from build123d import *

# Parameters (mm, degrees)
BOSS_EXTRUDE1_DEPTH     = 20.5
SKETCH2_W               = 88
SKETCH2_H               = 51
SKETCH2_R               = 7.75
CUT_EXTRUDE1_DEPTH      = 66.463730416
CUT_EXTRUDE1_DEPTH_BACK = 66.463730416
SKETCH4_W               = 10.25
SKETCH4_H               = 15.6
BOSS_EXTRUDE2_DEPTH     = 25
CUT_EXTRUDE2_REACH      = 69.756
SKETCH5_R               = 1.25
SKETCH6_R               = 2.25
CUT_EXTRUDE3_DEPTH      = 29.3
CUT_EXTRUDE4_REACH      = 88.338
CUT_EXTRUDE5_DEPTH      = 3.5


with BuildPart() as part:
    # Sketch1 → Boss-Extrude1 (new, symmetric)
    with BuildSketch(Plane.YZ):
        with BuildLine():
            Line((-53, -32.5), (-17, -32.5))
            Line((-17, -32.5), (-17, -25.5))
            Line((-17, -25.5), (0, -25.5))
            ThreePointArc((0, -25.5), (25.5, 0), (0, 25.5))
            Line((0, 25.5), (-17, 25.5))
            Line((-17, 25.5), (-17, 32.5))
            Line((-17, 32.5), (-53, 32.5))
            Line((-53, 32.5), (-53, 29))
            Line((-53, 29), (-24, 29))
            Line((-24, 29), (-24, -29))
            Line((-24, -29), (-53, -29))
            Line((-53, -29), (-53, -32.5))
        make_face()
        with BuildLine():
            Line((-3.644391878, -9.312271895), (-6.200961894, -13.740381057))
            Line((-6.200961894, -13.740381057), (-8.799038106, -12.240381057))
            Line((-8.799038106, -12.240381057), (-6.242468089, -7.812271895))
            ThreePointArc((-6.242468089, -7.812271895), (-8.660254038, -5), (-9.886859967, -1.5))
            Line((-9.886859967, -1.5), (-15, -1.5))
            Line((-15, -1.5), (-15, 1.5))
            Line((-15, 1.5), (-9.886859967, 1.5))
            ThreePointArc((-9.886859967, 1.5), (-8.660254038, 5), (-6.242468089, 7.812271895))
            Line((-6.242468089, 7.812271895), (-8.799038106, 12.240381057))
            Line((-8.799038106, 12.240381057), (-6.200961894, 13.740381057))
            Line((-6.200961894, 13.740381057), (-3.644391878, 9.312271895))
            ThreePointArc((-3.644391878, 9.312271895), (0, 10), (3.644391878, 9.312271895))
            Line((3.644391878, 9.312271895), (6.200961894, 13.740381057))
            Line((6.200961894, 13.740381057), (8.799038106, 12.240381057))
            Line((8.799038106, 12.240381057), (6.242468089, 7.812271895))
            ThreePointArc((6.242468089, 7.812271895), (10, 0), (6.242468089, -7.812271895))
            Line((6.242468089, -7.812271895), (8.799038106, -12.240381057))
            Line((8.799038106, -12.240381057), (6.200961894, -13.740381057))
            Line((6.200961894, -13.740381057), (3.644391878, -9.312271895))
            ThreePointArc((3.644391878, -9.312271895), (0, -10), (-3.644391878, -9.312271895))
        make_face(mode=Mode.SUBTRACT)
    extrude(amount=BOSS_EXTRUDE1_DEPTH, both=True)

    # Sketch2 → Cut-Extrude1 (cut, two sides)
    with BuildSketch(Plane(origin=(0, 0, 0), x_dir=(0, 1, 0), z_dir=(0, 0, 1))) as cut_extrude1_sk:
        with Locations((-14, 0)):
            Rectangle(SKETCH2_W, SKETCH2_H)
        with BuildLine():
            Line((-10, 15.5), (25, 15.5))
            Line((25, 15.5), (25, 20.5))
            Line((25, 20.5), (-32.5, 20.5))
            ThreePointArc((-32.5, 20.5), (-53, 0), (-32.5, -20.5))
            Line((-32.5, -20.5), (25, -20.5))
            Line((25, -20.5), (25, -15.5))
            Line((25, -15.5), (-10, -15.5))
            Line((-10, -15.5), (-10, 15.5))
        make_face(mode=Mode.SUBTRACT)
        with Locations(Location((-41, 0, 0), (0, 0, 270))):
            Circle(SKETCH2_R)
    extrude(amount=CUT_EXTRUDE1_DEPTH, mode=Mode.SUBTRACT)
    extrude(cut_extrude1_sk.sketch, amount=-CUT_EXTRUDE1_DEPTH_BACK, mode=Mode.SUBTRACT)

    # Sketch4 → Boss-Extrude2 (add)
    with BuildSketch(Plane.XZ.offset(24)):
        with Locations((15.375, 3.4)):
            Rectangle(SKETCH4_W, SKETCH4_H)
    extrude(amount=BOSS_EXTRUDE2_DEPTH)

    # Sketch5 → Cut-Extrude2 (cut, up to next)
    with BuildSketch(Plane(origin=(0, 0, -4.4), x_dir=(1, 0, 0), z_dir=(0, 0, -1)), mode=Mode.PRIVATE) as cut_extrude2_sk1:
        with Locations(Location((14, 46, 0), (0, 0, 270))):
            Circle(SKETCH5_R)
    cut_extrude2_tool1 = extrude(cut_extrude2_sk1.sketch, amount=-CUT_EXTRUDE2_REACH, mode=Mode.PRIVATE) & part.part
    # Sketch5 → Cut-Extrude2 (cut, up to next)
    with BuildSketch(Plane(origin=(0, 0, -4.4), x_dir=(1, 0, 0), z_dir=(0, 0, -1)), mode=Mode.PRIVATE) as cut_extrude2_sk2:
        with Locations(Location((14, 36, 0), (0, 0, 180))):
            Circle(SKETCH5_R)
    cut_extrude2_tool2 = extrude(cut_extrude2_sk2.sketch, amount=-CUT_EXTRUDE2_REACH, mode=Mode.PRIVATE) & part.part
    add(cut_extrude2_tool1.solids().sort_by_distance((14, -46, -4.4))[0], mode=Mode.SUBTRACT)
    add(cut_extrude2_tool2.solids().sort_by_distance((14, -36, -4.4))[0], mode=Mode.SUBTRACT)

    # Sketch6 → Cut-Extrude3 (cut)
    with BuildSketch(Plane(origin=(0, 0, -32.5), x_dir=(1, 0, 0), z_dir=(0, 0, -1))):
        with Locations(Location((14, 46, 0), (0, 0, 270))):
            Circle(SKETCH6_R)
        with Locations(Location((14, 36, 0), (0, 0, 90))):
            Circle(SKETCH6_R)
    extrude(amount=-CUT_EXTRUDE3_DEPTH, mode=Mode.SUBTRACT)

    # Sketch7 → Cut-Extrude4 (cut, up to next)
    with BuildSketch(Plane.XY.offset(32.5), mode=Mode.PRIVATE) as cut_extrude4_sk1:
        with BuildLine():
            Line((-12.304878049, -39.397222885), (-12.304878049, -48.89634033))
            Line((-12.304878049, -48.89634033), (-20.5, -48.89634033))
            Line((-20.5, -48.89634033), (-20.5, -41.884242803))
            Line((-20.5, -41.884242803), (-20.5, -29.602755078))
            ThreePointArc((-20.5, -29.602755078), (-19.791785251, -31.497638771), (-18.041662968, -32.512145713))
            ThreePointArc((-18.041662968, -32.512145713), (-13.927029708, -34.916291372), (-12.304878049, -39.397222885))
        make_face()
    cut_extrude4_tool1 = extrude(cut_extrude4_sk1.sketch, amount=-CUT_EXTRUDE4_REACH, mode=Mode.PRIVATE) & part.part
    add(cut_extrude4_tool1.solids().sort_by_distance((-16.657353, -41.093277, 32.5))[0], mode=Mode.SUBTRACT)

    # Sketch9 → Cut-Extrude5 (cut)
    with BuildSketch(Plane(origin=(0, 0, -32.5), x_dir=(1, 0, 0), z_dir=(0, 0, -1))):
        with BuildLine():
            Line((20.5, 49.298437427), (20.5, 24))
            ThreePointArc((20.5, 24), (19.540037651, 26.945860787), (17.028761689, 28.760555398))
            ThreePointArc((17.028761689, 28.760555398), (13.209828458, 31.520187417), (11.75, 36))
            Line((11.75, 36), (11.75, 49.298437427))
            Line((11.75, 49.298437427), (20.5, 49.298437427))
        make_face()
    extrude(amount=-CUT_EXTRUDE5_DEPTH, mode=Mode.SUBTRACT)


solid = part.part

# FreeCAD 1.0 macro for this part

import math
import FreeCAD as App
import Part
import Sketcher
Q = App.Units.Quantity


def add_polygon(sketch, points):
    """Adds a closed chain of lines whose ends are joined by coincident constraints."""
    first, n = sketch.GeometryCount, len(points)
    for a, b in zip(points, points[1:] + points[:1]):
        sketch.addGeometry(Part.LineSegment(App.Vector(*a, 0), App.Vector(*b, 0)), False)
    for i in range(n):
        sketch.addConstraint(Sketcher.Constraint("Coincident", first + i, 2, first + (i + 1) % n, 1))

doc = App.newDocument("Part")
params = doc.addObject("Spreadsheet::Sheet", "Params")
for row, (alias, value) in enumerate([
    ("sketch1_radius", "10 mm"),
    ("sketch1_radius2", "25.5 mm"),
    ("sketch1_width", "36 mm"),
    ("sketch1_width2", "17 mm"),
    ("sketch1_width3", "29 mm"),
    ("pad1_length", "41 mm"),
    ("sketch2_diameter", "15.5 mm"),
    ("sketch2_radius", "20.5 mm"),
    ("sketch2_width", "51 mm"),
    ("sketch2_width2", "31 mm"),
    ("sketch2_height", "88 mm"),
    ("sketch3_height", "15.6 mm"),
    ("sketch3_width", "10.25 mm"),
    ("pad2_length", "25 mm"),
    ("sketch4_diameter", "2.5 mm"),
    ("sketch5_diameter", "2.5 mm"),
    ("sketch6_diameter", "4.5 mm"),
    ("pocket4_length", "29.3 mm"),
    ("sketch7_radius", "7 mm"),
    ("sketch7_radius2", "3 mm"),
    ("sketch8_radius", "5 mm"),
    ("sketch8_width", "8.75 mm"),
    ("pocket6_length", "3.5 mm"),
], start=1):
    params.set(f"A{row}", alias)
    params.set(f"B{row}", "=" + value)
    params.setAlias(f"B{row}", alias)

body = doc.addObject("PartDesign::Body", "Body")

# Sketch on YZ plane
sketch1 = body.newObject("Sketcher::SketchObject", "Sketch")
sketch1.AttachmentSupport = (doc.getObject("YZ_Plane"), [""])
sketch1.MapMode = "FlatFace"
sketch1.addGeometry([
    Part.LineSegment(App.Vector(-53, -32.5, 0), App.Vector(-17, -32.5, 0)),  # 0
    Part.LineSegment(App.Vector(-17, -32.5, 0), App.Vector(-17, -25.5, 0)),  # 1
    Part.LineSegment(App.Vector(-17, -25.5, 0), App.Vector(0, -25.5, 0)),  # 2
    Part.ArcOfCircle(Part.Circle(App.Vector(0, 0, 0), App.Vector(0, 0, 1), 25.5), math.radians(-90), math.radians(90)),  # 3
    Part.LineSegment(App.Vector(0, 25.5, 0), App.Vector(-17, 25.5, 0)),  # 4
    Part.LineSegment(App.Vector(-17, 25.5, 0), App.Vector(-17, 32.5, 0)),  # 5
    Part.LineSegment(App.Vector(-17, 32.5, 0), App.Vector(-53, 32.5, 0)),  # 6
    Part.LineSegment(App.Vector(-53, 32.5, 0), App.Vector(-53, 29, 0)),  # 7
    Part.LineSegment(App.Vector(-53, 29, 0), App.Vector(-24, 29, 0)),  # 8
    Part.LineSegment(App.Vector(-24, 29, 0), App.Vector(-24, -29, 0)),  # 9
    Part.LineSegment(App.Vector(-24, -29, 0), App.Vector(-53, -29, 0)),  # 10
    Part.LineSegment(App.Vector(-53, -29, 0), App.Vector(-53, -32.5, 0)),  # 11
    Part.ArcOfCircle(Part.Circle(App.Vector(0, 0, 0), App.Vector(0, 0, 1), 10), math.radians(-111), math.radians(-69)),  # 12
    Part.LineSegment(App.Vector(-3.6, -9.3, 0), App.Vector(-6.2, -13.7, 0)),  # 13
    Part.LineSegment(App.Vector(-6.2, -13.7, 0), App.Vector(-8.8, -12.2, 0)),  # 14
    Part.LineSegment(App.Vector(-8.8, -12.2, 0), App.Vector(-6.2, -7.8, 0)),  # 15
    Part.ArcOfCircle(Part.Circle(App.Vector(0, 0, 0), App.Vector(0, 0, 1), 10), math.radians(-171), math.radians(-129)),  # 16
    Part.LineSegment(App.Vector(-9.9, -1.5, 0), App.Vector(-15, -1.5, 0)),  # 17
    Part.LineSegment(App.Vector(-15, -1.5, 0), App.Vector(-15, 1.5, 0)),  # 18
    Part.LineSegment(App.Vector(-15, 1.5, 0), App.Vector(-9.9, 1.5, 0)),  # 19
    Part.ArcOfCircle(Part.Circle(App.Vector(0, 0, 0), App.Vector(0, 0, 1), 10), math.radians(129), math.radians(171)),  # 20
    Part.LineSegment(App.Vector(-6.2, 7.8, 0), App.Vector(-8.8, 12.2, 0)),  # 21
    Part.LineSegment(App.Vector(-8.8, 12.2, 0), App.Vector(-6.2, 13.7, 0)),  # 22
    Part.LineSegment(App.Vector(-6.2, 13.7, 0), App.Vector(-3.6, 9.3, 0)),  # 23
    Part.ArcOfCircle(Part.Circle(App.Vector(0, 0, 0), App.Vector(0, 0, 1), 10), math.radians(69), math.radians(111)),  # 24
    Part.LineSegment(App.Vector(3.6, 9.3, 0), App.Vector(6.2, 13.7, 0)),  # 25
    Part.LineSegment(App.Vector(6.2, 13.7, 0), App.Vector(8.8, 12.2, 0)),  # 26
    Part.LineSegment(App.Vector(8.8, 12.2, 0), App.Vector(6.2, 7.8, 0)),  # 27
    Part.ArcOfCircle(Part.Circle(App.Vector(0, 0, 0), App.Vector(0, 0, 1), 10), math.radians(-51), math.radians(51)),  # 28
    Part.LineSegment(App.Vector(6.2, -7.8, 0), App.Vector(8.8, -12.2, 0)),  # 29
    Part.LineSegment(App.Vector(8.8, -12.2, 0), App.Vector(6.2, -13.7, 0)),  # 30
    Part.LineSegment(App.Vector(6.2, -13.7, 0), App.Vector(3.6, -9.3, 0)),  # 31
], False)
sketch1.addConstraint([
    Sketcher.Constraint("Coincident", 0, 2, 1, 1),
    Sketcher.Constraint("Coincident", 1, 2, 2, 1),
    Sketcher.Constraint("Tangent", 2, 2, 3, 1),
    Sketcher.Constraint("Tangent", 3, 2, 4, 1),
    Sketcher.Constraint("Coincident", 4, 2, 5, 1),
    Sketcher.Constraint("Coincident", 5, 2, 6, 1),
    Sketcher.Constraint("Coincident", 6, 2, 7, 1),
    Sketcher.Constraint("Coincident", 7, 2, 8, 1),
    Sketcher.Constraint("Coincident", 8, 2, 9, 1),
    Sketcher.Constraint("Coincident", 9, 2, 10, 1),
    Sketcher.Constraint("Coincident", 10, 2, 11, 1),
    Sketcher.Constraint("Coincident", 11, 2, 0, 1),
    Sketcher.Constraint("Coincident", 12, 1, 13, 1),
    Sketcher.Constraint("Coincident", 13, 2, 14, 1),
    Sketcher.Constraint("Coincident", 14, 2, 15, 1),
    Sketcher.Constraint("Coincident", 15, 2, 16, 2),
    Sketcher.Constraint("Coincident", 16, 1, 17, 1),
    Sketcher.Constraint("Coincident", 17, 2, 18, 1),
    Sketcher.Constraint("Coincident", 18, 2, 19, 1),
    Sketcher.Constraint("Coincident", 19, 2, 20, 2),
    Sketcher.Constraint("Coincident", 20, 1, 21, 1),
    Sketcher.Constraint("Coincident", 21, 2, 22, 1),
    Sketcher.Constraint("Coincident", 22, 2, 23, 1),
    Sketcher.Constraint("Coincident", 23, 2, 24, 2),
    Sketcher.Constraint("Coincident", 24, 1, 25, 1),
    Sketcher.Constraint("Coincident", 25, 2, 26, 1),
    Sketcher.Constraint("Coincident", 26, 2, 27, 1),
    Sketcher.Constraint("Coincident", 27, 2, 28, 2),
    Sketcher.Constraint("Coincident", 28, 1, 29, 1),
    Sketcher.Constraint("Coincident", 29, 2, 30, 1),
    Sketcher.Constraint("Coincident", 30, 2, 31, 1),
    Sketcher.Constraint("Coincident", 31, 2, 12, 2),
    Sketcher.Constraint("Horizontal", 0),
    Sketcher.Constraint("Vertical", 1),
    Sketcher.Constraint("Horizontal", 2),
    Sketcher.Constraint("Horizontal", 4),
    Sketcher.Constraint("Vertical", 5),
    Sketcher.Constraint("Horizontal", 6),
    Sketcher.Constraint("Vertical", 7),
    Sketcher.Constraint("Horizontal", 8),
    Sketcher.Constraint("Vertical", 9),
    Sketcher.Constraint("Horizontal", 10),
    Sketcher.Constraint("Vertical", 11),
    Sketcher.Constraint("Horizontal", 17),
    Sketcher.Constraint("Vertical", 18),
    Sketcher.Constraint("Horizontal", 19),
    Sketcher.Constraint("Coincident", 3, 3, -1, 1),
    Sketcher.Constraint("Coincident", 12, 3, -1, 1),
    Sketcher.Constraint("Coincident", 16, 3, -1, 1),
    Sketcher.Constraint("Coincident", 20, 3, -1, 1),
    Sketcher.Constraint("Coincident", 24, 3, -1, 1),
    Sketcher.Constraint("Coincident", 28, 3, -1, 1),
    Sketcher.Constraint("Equal", 12, 16),
    Sketcher.Constraint("Equal", 16, 20),
    Sketcher.Constraint("Equal", 20, 24),
    Sketcher.Constraint("Equal", 24, 28),
    Sketcher.Constraint("Symmetric", 13, 2, 25, 2, -1, 1),
    Sketcher.Constraint("Symmetric", 14, 2, 26, 2, -1, 1),
    Sketcher.Constraint("Symmetric", 21, 2, 29, 2, -1, 1),
    Sketcher.Constraint("Symmetric", 22, 2, 30, 2, -1, 1),
    Sketcher.Constraint("Symmetric", 22, 2, 25, 2, -2),
    Sketcher.Constraint("Symmetric", 21, 2, 26, 2, -2),
    Sketcher.Constraint("Symmetric", 0, 2, 5, 2, -1),
    Sketcher.Constraint("Symmetric", 7, 2, 10, 2, -1),
    Sketcher.Constraint("Perpendicular", 13, 14),
    Sketcher.Constraint("Perpendicular", 14, 15),
    Sketcher.Constraint("Perpendicular", 21, 22),
    Sketcher.Constraint("Perpendicular", 22, 23),
    Sketcher.Constraint("Parallel", 15, 25),
    Sketcher.Constraint("Perpendicular", 26, 27),
    Sketcher.Constraint("Parallel", 23, 29),
    Sketcher.Constraint("Perpendicular", 30, 31),
    Sketcher.Constraint("Vertical", 16, 1, 19, 2),
    Sketcher.Constraint("Equal", 13, 15),
    Sketcher.Constraint("Radius", 12, 10.0),
    Sketcher.Constraint("Radius", 3, 25.5),
    Sketcher.Constraint("DistanceX", 0, 1, 0, 2, 36.0),
    Sketcher.Constraint("DistanceX", 2, 1, 2, 2, 17.0),
    Sketcher.Constraint("DistanceX", 8, 1, 8, 2, 29.0),
    Sketcher.Constraint("DistanceY", 1, 1, 1, 2, 7.0),
    Sketcher.Constraint("DistanceY", 9, 2, 9, 1, 58.0),
    Sketcher.Constraint("DistanceY", 18, 1, 18, 2, 3.0),
    Sketcher.Constraint("Angle", 13, Q("-120 deg")),
    Sketcher.Constraint("Distance", 14, 3.0),
    Sketcher.Constraint("DistanceX", 17, 2, -1, 1, 15.0),
    Sketcher.Constraint("DistanceX", 13, 2, 29, 2, 15.0),
])
sketch1.setExpression("Constraints[74]", "Params.sketch1_radius")
sketch1.setExpression("Constraints[75]", "Params.sketch1_radius2")
sketch1.setExpression("Constraints[76]", "Params.sketch1_width")
sketch1.setExpression("Constraints[77]", "Params.sketch1_width2")
sketch1.setExpression("Constraints[78]", "Params.sketch1_width3")
pad1 = body.newObject("PartDesign::Pad", "Pad")
pad1.Profile = sketch1
pad1.setExpression("Length", "Params.pad1_length")
pad1.Midplane = True

# Sketch on XY plane
sketch2 = body.newObject("Sketcher::SketchObject", "Sketch001")
sketch2.AttachmentSupport = (doc.getObject("XY_Plane"), [""])
sketch2.MapMode = "FlatFace"
add_polygon(sketch2, [(-26, -58), (26, -58), (26, 30), (-26, 30)])  # lines 0-3
sketch2.addGeometry(Part.LineSegment(App.Vector(-16, 25, 0), App.Vector(-16, -10, 0)), False)  # 4
sketch2.addGeometry(Part.LineSegment(App.Vector(-16, -10, 0), App.Vector(16, -10, 0)), False)  # 5
sketch2.addGeometry(Part.LineSegment(App.Vector(16, -10, 0), App.Vector(16, 25, 0)), False)  # 6
sketch2.addGeometry(Part.LineSegment(App.Vector(16, 25, 0), App.Vector(20, 25, 0)), False)  # 7
sketch2.addGeometry(Part.LineSegment(App.Vector(20, 25, 0), App.Vector(20, -32, 0)), False)  # 8
sketch2.addGeometry(Part.ArcOfCircle(Part.Circle(App.Vector(0, -32, 0), App.Vector(0, 0, 1), 20), math.radians(180), math.radians(360)), False)  # 9
sketch2.addGeometry(Part.LineSegment(App.Vector(-20, -32, 0), App.Vector(-20, 25, 0)), False)  # 10
sketch2.addGeometry(Part.LineSegment(App.Vector(-20, 25, 0), App.Vector(-16, 25, 0)), False)  # 11
sketch2.addGeometry(Part.Circle(App.Vector(0, -41, 0), App.Vector(0, 0, 1), 8), False)  # 12
sketch2.addConstraint([
    Sketcher.Constraint("Coincident", 4, 2, 5, 1),
    Sketcher.Constraint("Coincident", 5, 2, 6, 1),
    Sketcher.Constraint("Coincident", 6, 2, 7, 1),
    Sketcher.Constraint("Coincident", 7, 2, 8, 1),
    Sketcher.Constraint("Tangent", 8, 2, 9, 2),
    Sketcher.Constraint("Tangent", 9, 1, 10, 1),
    Sketcher.Constraint("Coincident", 10, 2, 11, 1),
    Sketcher.Constraint("Coincident", 11, 2, 4, 1),
    Sketcher.Constraint("Horizontal", 0),
    Sketcher.Constraint("Vertical", 1),
    Sketcher.Constraint("Horizontal", 2),
    Sketcher.Constraint("Vertical", 3),
    Sketcher.Constraint("Vertical", 4),
    Sketcher.Constraint("Horizontal", 5),
    Sketcher.Constraint("Vertical", 6),
    Sketcher.Constraint("Horizontal", 7),
    Sketcher.Constraint("Vertical", 8),
    Sketcher.Constraint("Vertical", 10),
    Sketcher.Constraint("Horizontal", 11),
    Sketcher.Constraint("Symmetric", 7, 2, 10, 2, -2),
    Sketcher.Constraint("PointOnObject", 12, 3, -2),
    Sketcher.Constraint("Equal", 7, 11),
    Sketcher.Constraint("Diameter", 12, 15.5),
    Sketcher.Constraint("Radius", 9, 20.5),
    Sketcher.Constraint("DistanceX", 0, 1, 0, 2, 51.0),
    Sketcher.Constraint("DistanceX", 5, 1, 5, 2, 31.0),
    Sketcher.Constraint("DistanceY", 1, 1, 1, 2, 88.0),
    Sketcher.Constraint("DistanceY", 4, 2, 4, 1, 35.0),
    Sketcher.Constraint("DistanceY", 8, 2, 8, 1, 57.5),
    Sketcher.Constraint("DistanceY", 12, 3, -1, 1, 41.0),
    Sketcher.Constraint("DistanceY", 0, 2, -1, 1, 58.0),
    Sketcher.Constraint("DistanceY", 4, 2, -1, 1, 10.0),
    Sketcher.Constraint("DistanceX", 2, 2, 4, 2, 10.0),
])
sketch2.setExpression("Constraints[26]", "Params.sketch2_diameter")
sketch2.setExpression("Constraints[27]", "Params.sketch2_radius")
sketch2.setExpression("Constraints[28]", "Params.sketch2_width")
sketch2.setExpression("Constraints[29]", "Params.sketch2_width2")
sketch2.setExpression("Constraints[30]", "Params.sketch2_height")
pocket1 = body.newObject("PartDesign::Pocket", "Pocket")
pocket1.Profile = sketch2
pocket1.Type = "ThroughAll"
pocket1.Midplane = True

# Sketch on XZ plane
sketch3 = body.newObject("Sketcher::SketchObject", "Sketch002")
sketch3.AttachmentSupport = (doc.getObject("XZ_Plane"), [""])
sketch3.MapMode = "FlatFace"
sketch3.AttachmentOffset = App.Placement(App.Vector(0, 0, 24), App.Rotation())
add_polygon(sketch3, [(10, 11), (10, -4), (20, -4), (20, 11)])  # lines 0-3
sketch3.addConstraint([
    Sketcher.Constraint("Vertical", 0),
    Sketcher.Constraint("Horizontal", 1),
    Sketcher.Constraint("Vertical", 2),
    Sketcher.Constraint("Horizontal", 3),
    Sketcher.Constraint("DistanceY", 0, 2, 0, 1, 15.6),
    Sketcher.Constraint("DistanceX", 1, 1, 1, 2, 10.25),
    Sketcher.Constraint("DistanceY", 0, 2, -1, 1, 4.4),
    Sketcher.Constraint("DistanceX", -1, 1, 1, 2, 20.5),
])
sketch3.setExpression("Constraints[8]", "Params.sketch3_height")
sketch3.setExpression("Constraints[9]", "Params.sketch3_width")
pad2 = body.newObject("PartDesign::Pad", "Pad001")
pad2.Profile = sketch3
pad2.setExpression("Length", "Params.pad2_length")

# Sketch on XY plane
sketch4 = body.newObject("Sketcher::SketchObject", "Sketch003")
sketch4.AttachmentSupport = (doc.getObject("XY_Plane"), [""])
sketch4.MapMode = "FlatFace"
sketch4.AttachmentOffset = App.Placement(App.Vector(0, 0, -4.4), App.Rotation())
sketch4.addGeometry(Part.Circle(App.Vector(14, -46, 0), App.Vector(0, 0, 1), 1.2), False)
sketch4.addConstraint([
    Sketcher.Constraint("Diameter", 0, 2.5),
    Sketcher.Constraint("DistanceX", -1, 1, 0, 3, 14.0),
    Sketcher.Constraint("DistanceY", 0, 3, -1, 1, 46.0),
])
sketch4.setExpression("Constraints[0]", "Params.sketch4_diameter")
pocket2 = body.newObject("PartDesign::Pocket", "Pocket001")
pocket2.Profile = sketch4
pocket2.Type = "UpToFirst"
pocket2.Reversed = True

# Sketch on XY plane
sketch5 = body.newObject("Sketcher::SketchObject", "Sketch004")
sketch5.AttachmentSupport = (doc.getObject("XY_Plane"), [""])
sketch5.MapMode = "FlatFace"
sketch5.AttachmentOffset = App.Placement(App.Vector(0, 0, -4.4), App.Rotation())
sketch5.addGeometry(Part.Circle(App.Vector(14, -36, 0), App.Vector(0, 0, 1), 1.2), False)
sketch5.addConstraint([
    Sketcher.Constraint("Diameter", 0, 2.5),
    Sketcher.Constraint("DistanceX", -1, 1, 0, 3, 14.0),
    Sketcher.Constraint("DistanceY", 0, 3, -1, 1, 36.0),
])
sketch5.setExpression("Constraints[0]", "Params.sketch5_diameter")
pocket3 = body.newObject("PartDesign::Pocket", "Pocket002")
pocket3.Profile = sketch5
pocket3.Type = "UpToFirst"
pocket3.Reversed = True

# Sketch on XY plane
sketch6 = body.newObject("Sketcher::SketchObject", "Sketch005")
sketch6.AttachmentSupport = (doc.getObject("XY_Plane"), [""])
sketch6.MapMode = "FlatFace"
sketch6.AttachmentOffset = App.Placement(App.Vector(0, 0, -32.5), App.Rotation())
sketch6.addGeometry([
    Part.Circle(App.Vector(14, -46, 0), App.Vector(0, 0, 1), 2.2),
    Part.Circle(App.Vector(14, -36, 0), App.Vector(0, 0, 1), 2.2),
], False)
sketch6.addConstraint([
    Sketcher.Constraint("Equal", 0, 1),
    Sketcher.Constraint("Vertical", 0, 3, 1, 3),
    Sketcher.Constraint("Diameter", 0, 4.5),
    Sketcher.Constraint("DistanceX", -1, 1, 0, 3, 14.0),
    Sketcher.Constraint("DistanceY", 0, 3, -1, 1, 46.0),
    Sketcher.Constraint("DistanceY", 1, 3, -1, 1, 36.0),
])
sketch6.setExpression("Constraints[2]", "Params.sketch6_diameter")
pocket4 = body.newObject("PartDesign::Pocket", "Pocket003")
pocket4.Profile = sketch6
pocket4.setExpression("Length", "Params.pocket4_length")
pocket4.Reversed = True

# Sketch on XY plane
sketch7 = body.newObject("Sketcher::SketchObject", "Sketch006")
sketch7.AttachmentSupport = (doc.getObject("XY_Plane"), [""])
sketch7.MapMode = "FlatFace"
sketch7.AttachmentOffset = App.Placement(App.Vector(0, 0, 32.5), App.Rotation())
sketch7.addGeometry([
    Part.LineSegment(App.Vector(-12.3, -48.9, 0), App.Vector(-12.3, -39.4, 0)),  # 0
    Part.ArcOfCircle(Part.Circle(App.Vector(-19.3, -39.4, 0), App.Vector(0, 0, 1), 7), math.radians(0), math.radians(80)),  # 1
    Part.ArcOfCircle(Part.Circle(App.Vector(-17.5, -29.6, 0), App.Vector(0, 0, 1), 3), math.radians(-179), math.radians(-100)),  # 2
    Part.LineSegment(App.Vector(-20.5, -29.6, 0), App.Vector(-20.5, -48.9, 0)),  # 3
    Part.LineSegment(App.Vector(-20.5, -48.9, 0), App.Vector(-12.3, -48.9, 0)),  # 4
], False)
sketch7.addConstraint([
    Sketcher.Constraint("Tangent", 0, 2, 1, 1),
    Sketcher.Constraint("Tangent", 1, 2, 2, 2),
    Sketcher.Constraint("Coincident", 2, 1, 3, 1),
    Sketcher.Constraint("Coincident", 3, 2, 4, 1),
    Sketcher.Constraint("Coincident", 4, 2, 0, 1),
    Sketcher.Constraint("Vertical", 0),
    Sketcher.Constraint("Vertical", 3),
    Sketcher.Constraint("Horizontal", 4),
    Sketcher.Constraint("Radius", 1, 7.0),
    Sketcher.Constraint("Radius", 2, 3.0),
    Sketcher.Constraint("DistanceX", 2, 1, -1, 1, 20.5),
    Sketcher.Constraint("DistanceX", 4, 1, 4, 2, 8.195122),
    Sketcher.Constraint("DistanceY", 2, 3, -1, 1, 29.561398),
    Sketcher.Constraint("DistanceY", 0, 1, 0, 2, 9.499117),
    Sketcher.Constraint("DistanceY", 3, 2, 3, 1, 19.293585),
])
sketch7.setExpression("Constraints[8]", "Params.sketch7_radius")
sketch7.setExpression("Constraints[9]", "Params.sketch7_radius2")
pocket5 = body.newObject("PartDesign::Pocket", "Pocket004")
pocket5.Profile = sketch7
pocket5.Type = "UpToFirst"

# Sketch on XY plane
sketch8 = body.newObject("Sketcher::SketchObject", "Sketch007")
sketch8.AttachmentSupport = (doc.getObject("XY_Plane"), [""])
sketch8.MapMode = "FlatFace"
sketch8.AttachmentOffset = App.Placement(App.Vector(0, 0, -32.5), App.Rotation())
sketch8.addGeometry([
    Part.LineSegment(App.Vector(20, -24, 0), App.Vector(20, -49, 0)),  # 0
    Part.LineSegment(App.Vector(20, -49, 0), App.Vector(12, -49, 0)),  # 1
    Part.LineSegment(App.Vector(12, -49, 0), App.Vector(12, -36, 0)),  # 2
    Part.ArcOfCircle(Part.Circle(App.Vector(19, -36, 0), App.Vector(0, 0, 1), 8), math.radians(108), math.radians(180)),  # 3
    Part.ArcOfCircle(Part.Circle(App.Vector(15, -24, 0), App.Vector(0, 0, 1), 5), math.radians(-72), math.radians(0)),  # 4
], False)
sketch8.addConstraint([
    Sketcher.Constraint("Coincident", 0, 2, 1, 1),
    Sketcher.Constraint("Coincident", 1, 2, 2, 1),
    Sketcher.Constraint("Tangent", 2, 2, 3, 2),
    Sketcher.Constraint("Tangent", 3, 1, 4, 1),
    Sketcher.Constraint("Tangent", 4, 2, 0, 1),
    Sketcher.Constraint("Vertical", 0),
    Sketcher.Constraint("Horizontal", 1),
    Sketcher.Constraint("Vertical", 2),
    Sketcher.Constraint("Radius", 4, 5.0),
    Sketcher.Constraint("DistanceY", 3, 3, -1, 1, 36.0),
    Sketcher.Constraint("DistanceY", 4, 3, -1, 1, 24.0),
    Sketcher.Constraint("DistanceX", 1, 2, 1, 1, 8.75),
    Sketcher.Constraint("DistanceX", -1, 1, 4, 3, 15.5),
    Sketcher.Constraint("DistanceY", 0, 2, 0, 1, 25.298437),
])
sketch8.setExpression("Constraints[8]", "Params.sketch8_radius")
sketch8.setExpression("Constraints[11]", "Params.sketch8_width")
pocket6 = body.newObject("PartDesign::Pocket", "Pocket005")
pocket6.Profile = sketch8
pocket6.setExpression("Length", "Params.pocket6_length")
pocket6.Reversed = True

doc.recompute()
